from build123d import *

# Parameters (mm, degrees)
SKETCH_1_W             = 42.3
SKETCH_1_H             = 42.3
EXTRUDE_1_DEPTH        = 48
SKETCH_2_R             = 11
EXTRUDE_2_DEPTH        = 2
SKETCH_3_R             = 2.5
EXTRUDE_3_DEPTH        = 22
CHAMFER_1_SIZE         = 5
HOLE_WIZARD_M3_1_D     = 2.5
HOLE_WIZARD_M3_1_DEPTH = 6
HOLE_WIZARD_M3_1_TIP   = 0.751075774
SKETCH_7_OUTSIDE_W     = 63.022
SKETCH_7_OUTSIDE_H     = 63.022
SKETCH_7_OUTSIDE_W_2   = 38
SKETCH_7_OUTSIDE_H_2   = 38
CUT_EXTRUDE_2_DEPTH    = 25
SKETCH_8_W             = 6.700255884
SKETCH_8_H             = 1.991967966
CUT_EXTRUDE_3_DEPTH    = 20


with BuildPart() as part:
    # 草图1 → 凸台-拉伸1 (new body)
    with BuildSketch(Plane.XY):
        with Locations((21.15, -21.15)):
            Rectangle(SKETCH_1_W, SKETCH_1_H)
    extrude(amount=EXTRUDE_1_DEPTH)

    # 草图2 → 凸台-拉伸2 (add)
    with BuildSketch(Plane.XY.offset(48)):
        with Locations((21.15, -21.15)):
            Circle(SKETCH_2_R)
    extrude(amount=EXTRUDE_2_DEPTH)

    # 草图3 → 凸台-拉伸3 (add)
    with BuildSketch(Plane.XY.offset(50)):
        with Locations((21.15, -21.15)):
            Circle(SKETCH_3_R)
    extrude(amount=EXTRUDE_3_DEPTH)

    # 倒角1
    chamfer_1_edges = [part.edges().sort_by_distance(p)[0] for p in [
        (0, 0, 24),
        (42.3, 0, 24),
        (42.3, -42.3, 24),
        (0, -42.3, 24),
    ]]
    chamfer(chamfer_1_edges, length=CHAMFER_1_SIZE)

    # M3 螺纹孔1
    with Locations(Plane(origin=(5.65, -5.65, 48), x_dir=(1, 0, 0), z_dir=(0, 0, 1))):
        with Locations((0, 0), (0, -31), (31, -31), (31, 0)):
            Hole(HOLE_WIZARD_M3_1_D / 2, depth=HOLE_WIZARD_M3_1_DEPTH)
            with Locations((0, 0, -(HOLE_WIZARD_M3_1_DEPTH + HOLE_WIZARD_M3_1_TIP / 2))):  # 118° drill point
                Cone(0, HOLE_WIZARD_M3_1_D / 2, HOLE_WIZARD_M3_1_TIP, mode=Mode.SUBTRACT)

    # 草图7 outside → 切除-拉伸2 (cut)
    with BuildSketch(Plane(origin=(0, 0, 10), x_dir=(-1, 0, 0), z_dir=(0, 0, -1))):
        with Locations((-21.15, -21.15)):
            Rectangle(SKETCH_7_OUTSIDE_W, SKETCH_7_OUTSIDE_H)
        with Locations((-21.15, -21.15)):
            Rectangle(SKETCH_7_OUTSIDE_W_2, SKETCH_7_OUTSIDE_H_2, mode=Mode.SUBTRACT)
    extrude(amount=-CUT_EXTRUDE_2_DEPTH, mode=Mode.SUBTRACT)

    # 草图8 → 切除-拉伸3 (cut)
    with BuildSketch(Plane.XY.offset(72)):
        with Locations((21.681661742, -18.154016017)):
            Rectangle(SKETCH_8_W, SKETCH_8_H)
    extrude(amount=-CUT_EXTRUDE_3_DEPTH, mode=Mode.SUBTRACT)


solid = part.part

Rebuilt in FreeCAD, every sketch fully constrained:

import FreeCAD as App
import Part
import Sketcher
from FreeCAD import Vector


def edges_at(feature, points):
    """Names of the edges that pass closest to the given points."""
    edges = feature.Shape.Edges
    near = lambda p: min(range(len(edges)), key=lambda i: edges[i].distToShape(Part.Vertex(*p))[0])
    return sorted({f"Edge{near(p) + 1}" for p in points})


def add_polygon(sketch, points):
    """Adds a closed chain of lines whose ends are joined by coincident constraints."""
    first, n = sketch.GeometryCount, len(points)
    for a, b in zip(points, points[1:] + points[:1]):
        sketch.addGeometry(Part.LineSegment(App.Vector(*a, 0), App.Vector(*b, 0)), False)
    for i in range(n):
        sketch.addConstraint(Sketcher.Constraint("Coincident", first + i, 2, first + (i + 1) % n, 1))

doc = App.newDocument("Part")
body = doc.addObject("PartDesign::Body", "Body")

sketch1 = doc.addObject("Sketcher::SketchObject", "Sketch")
body.addObject(sketch1)
sketch1.AttachmentSupport = (doc.XY_Plane, [""])
sketch1.MapMode = "FlatFace"
add_polygon(sketch1, [(0, 0), (0, -42.3), (42.3, -42.3), (42.3, 0)])
sketch1.addConstraint([
    Sketcher.Constraint("Vertical", 0),
    Sketcher.Constraint("Horizontal", 1),
    Sketcher.Constraint("Vertical", 2),
    Sketcher.Constraint("Horizontal", 3),
    Sketcher.Constraint("Coincident", 3, 2, -1, 1),
    Sketcher.Constraint("Equal", 3, 0),
    Sketcher.Constraint("DistanceX", 1, 1, 1, 2, 42.3),
])
pad1 = doc.addObject("PartDesign::Pad", "Pad")
body.addObject(pad1)
pad1.Profile = sketch1
pad1.Length = 48

sketch2 = doc.addObject("Sketcher::SketchObject", "Sketch001")
body.addObject(sketch2)
sketch2.AttachmentSupport = (doc.XY_Plane, [""])
sketch2.MapMode = "FlatFace"
sketch2.AttachmentOffset = App.Placement(Vector(0, 0, 48), App.Rotation())
sketch2.addGeometry(Part.Circle(Vector(21.15, -21.15, 0), Vector(0, 0, 1), 11), False)
sketch2.addConstraint([
    Sketcher.Constraint("Diameter", 0, 22.0),
    Sketcher.Constraint("DistanceX", -1, 1, 0, 3, 21.15),
    Sketcher.Constraint("DistanceY", 0, 3, -1, 1, 21.15),
])
pad2 = doc.addObject("PartDesign::Pad", "Pad001")
body.addObject(pad2)
pad2.Profile = sketch2
pad2.Length = 2

sketch3 = doc.addObject("Sketcher::SketchObject", "Sketch002")
body.addObject(sketch3)
sketch3.AttachmentSupport = (doc.XY_Plane, [""])
sketch3.MapMode = "FlatFace"
sketch3.AttachmentOffset = App.Placement(Vector(0, 0, 50), App.Rotation())
sketch3.addGeometry(Part.Circle(Vector(21.15, -21.15, 0), Vector(0, 0, 1), 2.5), False)
sketch3.addConstraint([
    Sketcher.Constraint("Diameter", 0, 5.0),
    Sketcher.Constraint("DistanceX", -1, 1, 0, 3, 21.15),
    Sketcher.Constraint("DistanceY", 0, 3, -1, 1, 21.15),
])
pad3 = doc.addObject("PartDesign::Pad", "Pad002")
body.addObject(pad3)
pad3.Profile = sketch3
pad3.Length = 22
doc.recompute()

chamfer = doc.addObject("PartDesign::Chamfer", "Chamfer")
body.addObject(chamfer)
chamfer.Base = (pad3, edges_at(pad3, [
    (0, 0, 24),
    (42.3, 0, 24),
    (42.3, -42.3, 24),
    (0, -42.3, 24),
]))
chamfer.Size = 5

sketch4 = doc.addObject("Sketcher::SketchObject", "Sketch003")
body.addObject(sketch4)
sketch4.AttachmentSupport = (doc.XY_Plane, [""])
sketch4.MapMode = "FlatFace"
sketch4.AttachmentOffset = App.Placement(Vector(0, 0, 48), App.Rotation())
sketch4.addGeometry([
    Part.Circle(Vector(5.65, -5.65, 0), Vector(0, 0, 1), 1.25),
    Part.Circle(Vector(5.65, -36.65, 0), Vector(0, 0, 1), 1.25),
    Part.Circle(Vector(36.65, -36.65, 0), Vector(0, 0, 1), 1.25),
    Part.Circle(Vector(36.65, -5.65, 0), Vector(0, 0, 1), 1.25),
], False)
sketch4.addConstraint([
    Sketcher.Constraint("Equal", 0, 1),
    Sketcher.Constraint("Equal", 1, 2),
    Sketcher.Constraint("Equal", 2, 3),
    Sketcher.Constraint("Horizontal", 1, 3, 2, 3),
    Sketcher.Constraint("Horizontal", 0, 3, 3, 3),
    Sketcher.Constraint("Vertical", 0, 3, 1, 3),
    Sketcher.Constraint("Vertical", 2, 3, 3, 3),
    Sketcher.Constraint("Diameter", 0, 2.5),
    Sketcher.Constraint("DistanceY", 1, 3, 0, 3, 31.0),
    Sketcher.Constraint("DistanceX", 1, 3, 2, 3, 31.0),
    Sketcher.Constraint("DistanceX", -1, 1, 0, 3, 5.65),
    Sketcher.Constraint("DistanceY", 0, 3, -1, 1, 5.65),
])
doc.recompute()
hole = doc.addObject("PartDesign::Hole", "Hole")
body.addObject(hole)
hole.Profile = sketch4
hole.ThreadType = "None"
hole.Diameter = 2.5
hole.DepthType = "Dimension"
hole.Depth = 6
hole.DrillPoint = "Angled"
hole.DrillPointAngle = 118

sketch5 = doc.addObject("Sketcher::SketchObject", "Sketch004")
body.addObject(sketch5)
sketch5.AttachmentSupport = (doc.XY_Plane, [""])
sketch5.MapMode = "FlatFace"
sketch5.AttachmentOffset = App.Placement(Vector(0, 0, 10), App.Rotation())
add_polygon(sketch5, [(52.661, 10.361), (52.661, -52.661), (-10.361, -52.661), (-10.361, 10.361)])
add_polygon(sketch5, [(2.15, -40.15), (40.15, -40.15), (40.15, -2.15), (2.15, -2.15)])
sketch5.addConstraint([
    Sketcher.Constraint("Vertical", 0),
    Sketcher.Constraint("Horizontal", 1),
    Sketcher.Constraint("Vertical", 2),
    Sketcher.Constraint("Horizontal", 3),
    Sketcher.Constraint("Horizontal", 4),
    Sketcher.Constraint("Vertical", 5),
    Sketcher.Constraint("Horizontal", 6),
    Sketcher.Constraint("Vertical", 7),
    Sketcher.Constraint("Equal", 3, 0),
    Sketcher.Constraint("Equal", 6, 5),
    Sketcher.Constraint("DistanceX", 4, 1, 4, 2, 38.0),
    Sketcher.Constraint("DistanceX", 1, 2, 1, 1, 63.022),
    Sketcher.Constraint("DistanceX", -1, 1, 4, 2, 40.15),
    Sketcher.Constraint("DistanceY", 4, 2, -1, 1, 40.15),
    Sketcher.Constraint("DistanceX", -1, 1, 0, 2, 52.661),
    Sketcher.Constraint("DistanceY", 0, 2, -1, 1, 52.661),
])
pocket1 = doc.addObject("PartDesign::Pocket", "Pocket")
body.addObject(pocket1)
pocket1.Profile = sketch5
pocket1.Length = 25
pocket1.Reversed = True

sketch6 = doc.addObject("Sketcher::SketchObject", "Sketch005")
body.addObject(sketch6)
sketch6.AttachmentSupport = (doc.XY_Plane, [""])
sketch6.MapMode = "FlatFace"
sketch6.AttachmentOffset = App.Placement(Vector(0, 0, 72), App.Rotation())
add_polygon(sketch6, [(18.331534, -17.158032), (18.331534, -19.15), (25.03179, -19.15), (25.03179, -17.158032)])
sketch6.addConstraint([
    Sketcher.Constraint("Vertical", 0),
    Sketcher.Constraint("Horizontal", 1),
    Sketcher.Constraint("Vertical", 2),
    Sketcher.Constraint("Horizontal", 3),
    Sketcher.Constraint("DistanceY", 0, 2, -1, 1, 19.15),
    Sketcher.Constraint("DistanceX", 1, 1, 1, 2, 6.700256),
    Sketcher.Constraint("DistanceY", 0, 2, 0, 1, 1.991968),
    Sketcher.Constraint("DistanceX", -1, 1, 1, 2, 25.03179),
])
pocket2 = doc.addObject("PartDesign::Pocket", "Pocket001")
body.addObject(pocket2)
pocket2.Profile = sketch6
pocket2.Length = 20

doc.recompute()
